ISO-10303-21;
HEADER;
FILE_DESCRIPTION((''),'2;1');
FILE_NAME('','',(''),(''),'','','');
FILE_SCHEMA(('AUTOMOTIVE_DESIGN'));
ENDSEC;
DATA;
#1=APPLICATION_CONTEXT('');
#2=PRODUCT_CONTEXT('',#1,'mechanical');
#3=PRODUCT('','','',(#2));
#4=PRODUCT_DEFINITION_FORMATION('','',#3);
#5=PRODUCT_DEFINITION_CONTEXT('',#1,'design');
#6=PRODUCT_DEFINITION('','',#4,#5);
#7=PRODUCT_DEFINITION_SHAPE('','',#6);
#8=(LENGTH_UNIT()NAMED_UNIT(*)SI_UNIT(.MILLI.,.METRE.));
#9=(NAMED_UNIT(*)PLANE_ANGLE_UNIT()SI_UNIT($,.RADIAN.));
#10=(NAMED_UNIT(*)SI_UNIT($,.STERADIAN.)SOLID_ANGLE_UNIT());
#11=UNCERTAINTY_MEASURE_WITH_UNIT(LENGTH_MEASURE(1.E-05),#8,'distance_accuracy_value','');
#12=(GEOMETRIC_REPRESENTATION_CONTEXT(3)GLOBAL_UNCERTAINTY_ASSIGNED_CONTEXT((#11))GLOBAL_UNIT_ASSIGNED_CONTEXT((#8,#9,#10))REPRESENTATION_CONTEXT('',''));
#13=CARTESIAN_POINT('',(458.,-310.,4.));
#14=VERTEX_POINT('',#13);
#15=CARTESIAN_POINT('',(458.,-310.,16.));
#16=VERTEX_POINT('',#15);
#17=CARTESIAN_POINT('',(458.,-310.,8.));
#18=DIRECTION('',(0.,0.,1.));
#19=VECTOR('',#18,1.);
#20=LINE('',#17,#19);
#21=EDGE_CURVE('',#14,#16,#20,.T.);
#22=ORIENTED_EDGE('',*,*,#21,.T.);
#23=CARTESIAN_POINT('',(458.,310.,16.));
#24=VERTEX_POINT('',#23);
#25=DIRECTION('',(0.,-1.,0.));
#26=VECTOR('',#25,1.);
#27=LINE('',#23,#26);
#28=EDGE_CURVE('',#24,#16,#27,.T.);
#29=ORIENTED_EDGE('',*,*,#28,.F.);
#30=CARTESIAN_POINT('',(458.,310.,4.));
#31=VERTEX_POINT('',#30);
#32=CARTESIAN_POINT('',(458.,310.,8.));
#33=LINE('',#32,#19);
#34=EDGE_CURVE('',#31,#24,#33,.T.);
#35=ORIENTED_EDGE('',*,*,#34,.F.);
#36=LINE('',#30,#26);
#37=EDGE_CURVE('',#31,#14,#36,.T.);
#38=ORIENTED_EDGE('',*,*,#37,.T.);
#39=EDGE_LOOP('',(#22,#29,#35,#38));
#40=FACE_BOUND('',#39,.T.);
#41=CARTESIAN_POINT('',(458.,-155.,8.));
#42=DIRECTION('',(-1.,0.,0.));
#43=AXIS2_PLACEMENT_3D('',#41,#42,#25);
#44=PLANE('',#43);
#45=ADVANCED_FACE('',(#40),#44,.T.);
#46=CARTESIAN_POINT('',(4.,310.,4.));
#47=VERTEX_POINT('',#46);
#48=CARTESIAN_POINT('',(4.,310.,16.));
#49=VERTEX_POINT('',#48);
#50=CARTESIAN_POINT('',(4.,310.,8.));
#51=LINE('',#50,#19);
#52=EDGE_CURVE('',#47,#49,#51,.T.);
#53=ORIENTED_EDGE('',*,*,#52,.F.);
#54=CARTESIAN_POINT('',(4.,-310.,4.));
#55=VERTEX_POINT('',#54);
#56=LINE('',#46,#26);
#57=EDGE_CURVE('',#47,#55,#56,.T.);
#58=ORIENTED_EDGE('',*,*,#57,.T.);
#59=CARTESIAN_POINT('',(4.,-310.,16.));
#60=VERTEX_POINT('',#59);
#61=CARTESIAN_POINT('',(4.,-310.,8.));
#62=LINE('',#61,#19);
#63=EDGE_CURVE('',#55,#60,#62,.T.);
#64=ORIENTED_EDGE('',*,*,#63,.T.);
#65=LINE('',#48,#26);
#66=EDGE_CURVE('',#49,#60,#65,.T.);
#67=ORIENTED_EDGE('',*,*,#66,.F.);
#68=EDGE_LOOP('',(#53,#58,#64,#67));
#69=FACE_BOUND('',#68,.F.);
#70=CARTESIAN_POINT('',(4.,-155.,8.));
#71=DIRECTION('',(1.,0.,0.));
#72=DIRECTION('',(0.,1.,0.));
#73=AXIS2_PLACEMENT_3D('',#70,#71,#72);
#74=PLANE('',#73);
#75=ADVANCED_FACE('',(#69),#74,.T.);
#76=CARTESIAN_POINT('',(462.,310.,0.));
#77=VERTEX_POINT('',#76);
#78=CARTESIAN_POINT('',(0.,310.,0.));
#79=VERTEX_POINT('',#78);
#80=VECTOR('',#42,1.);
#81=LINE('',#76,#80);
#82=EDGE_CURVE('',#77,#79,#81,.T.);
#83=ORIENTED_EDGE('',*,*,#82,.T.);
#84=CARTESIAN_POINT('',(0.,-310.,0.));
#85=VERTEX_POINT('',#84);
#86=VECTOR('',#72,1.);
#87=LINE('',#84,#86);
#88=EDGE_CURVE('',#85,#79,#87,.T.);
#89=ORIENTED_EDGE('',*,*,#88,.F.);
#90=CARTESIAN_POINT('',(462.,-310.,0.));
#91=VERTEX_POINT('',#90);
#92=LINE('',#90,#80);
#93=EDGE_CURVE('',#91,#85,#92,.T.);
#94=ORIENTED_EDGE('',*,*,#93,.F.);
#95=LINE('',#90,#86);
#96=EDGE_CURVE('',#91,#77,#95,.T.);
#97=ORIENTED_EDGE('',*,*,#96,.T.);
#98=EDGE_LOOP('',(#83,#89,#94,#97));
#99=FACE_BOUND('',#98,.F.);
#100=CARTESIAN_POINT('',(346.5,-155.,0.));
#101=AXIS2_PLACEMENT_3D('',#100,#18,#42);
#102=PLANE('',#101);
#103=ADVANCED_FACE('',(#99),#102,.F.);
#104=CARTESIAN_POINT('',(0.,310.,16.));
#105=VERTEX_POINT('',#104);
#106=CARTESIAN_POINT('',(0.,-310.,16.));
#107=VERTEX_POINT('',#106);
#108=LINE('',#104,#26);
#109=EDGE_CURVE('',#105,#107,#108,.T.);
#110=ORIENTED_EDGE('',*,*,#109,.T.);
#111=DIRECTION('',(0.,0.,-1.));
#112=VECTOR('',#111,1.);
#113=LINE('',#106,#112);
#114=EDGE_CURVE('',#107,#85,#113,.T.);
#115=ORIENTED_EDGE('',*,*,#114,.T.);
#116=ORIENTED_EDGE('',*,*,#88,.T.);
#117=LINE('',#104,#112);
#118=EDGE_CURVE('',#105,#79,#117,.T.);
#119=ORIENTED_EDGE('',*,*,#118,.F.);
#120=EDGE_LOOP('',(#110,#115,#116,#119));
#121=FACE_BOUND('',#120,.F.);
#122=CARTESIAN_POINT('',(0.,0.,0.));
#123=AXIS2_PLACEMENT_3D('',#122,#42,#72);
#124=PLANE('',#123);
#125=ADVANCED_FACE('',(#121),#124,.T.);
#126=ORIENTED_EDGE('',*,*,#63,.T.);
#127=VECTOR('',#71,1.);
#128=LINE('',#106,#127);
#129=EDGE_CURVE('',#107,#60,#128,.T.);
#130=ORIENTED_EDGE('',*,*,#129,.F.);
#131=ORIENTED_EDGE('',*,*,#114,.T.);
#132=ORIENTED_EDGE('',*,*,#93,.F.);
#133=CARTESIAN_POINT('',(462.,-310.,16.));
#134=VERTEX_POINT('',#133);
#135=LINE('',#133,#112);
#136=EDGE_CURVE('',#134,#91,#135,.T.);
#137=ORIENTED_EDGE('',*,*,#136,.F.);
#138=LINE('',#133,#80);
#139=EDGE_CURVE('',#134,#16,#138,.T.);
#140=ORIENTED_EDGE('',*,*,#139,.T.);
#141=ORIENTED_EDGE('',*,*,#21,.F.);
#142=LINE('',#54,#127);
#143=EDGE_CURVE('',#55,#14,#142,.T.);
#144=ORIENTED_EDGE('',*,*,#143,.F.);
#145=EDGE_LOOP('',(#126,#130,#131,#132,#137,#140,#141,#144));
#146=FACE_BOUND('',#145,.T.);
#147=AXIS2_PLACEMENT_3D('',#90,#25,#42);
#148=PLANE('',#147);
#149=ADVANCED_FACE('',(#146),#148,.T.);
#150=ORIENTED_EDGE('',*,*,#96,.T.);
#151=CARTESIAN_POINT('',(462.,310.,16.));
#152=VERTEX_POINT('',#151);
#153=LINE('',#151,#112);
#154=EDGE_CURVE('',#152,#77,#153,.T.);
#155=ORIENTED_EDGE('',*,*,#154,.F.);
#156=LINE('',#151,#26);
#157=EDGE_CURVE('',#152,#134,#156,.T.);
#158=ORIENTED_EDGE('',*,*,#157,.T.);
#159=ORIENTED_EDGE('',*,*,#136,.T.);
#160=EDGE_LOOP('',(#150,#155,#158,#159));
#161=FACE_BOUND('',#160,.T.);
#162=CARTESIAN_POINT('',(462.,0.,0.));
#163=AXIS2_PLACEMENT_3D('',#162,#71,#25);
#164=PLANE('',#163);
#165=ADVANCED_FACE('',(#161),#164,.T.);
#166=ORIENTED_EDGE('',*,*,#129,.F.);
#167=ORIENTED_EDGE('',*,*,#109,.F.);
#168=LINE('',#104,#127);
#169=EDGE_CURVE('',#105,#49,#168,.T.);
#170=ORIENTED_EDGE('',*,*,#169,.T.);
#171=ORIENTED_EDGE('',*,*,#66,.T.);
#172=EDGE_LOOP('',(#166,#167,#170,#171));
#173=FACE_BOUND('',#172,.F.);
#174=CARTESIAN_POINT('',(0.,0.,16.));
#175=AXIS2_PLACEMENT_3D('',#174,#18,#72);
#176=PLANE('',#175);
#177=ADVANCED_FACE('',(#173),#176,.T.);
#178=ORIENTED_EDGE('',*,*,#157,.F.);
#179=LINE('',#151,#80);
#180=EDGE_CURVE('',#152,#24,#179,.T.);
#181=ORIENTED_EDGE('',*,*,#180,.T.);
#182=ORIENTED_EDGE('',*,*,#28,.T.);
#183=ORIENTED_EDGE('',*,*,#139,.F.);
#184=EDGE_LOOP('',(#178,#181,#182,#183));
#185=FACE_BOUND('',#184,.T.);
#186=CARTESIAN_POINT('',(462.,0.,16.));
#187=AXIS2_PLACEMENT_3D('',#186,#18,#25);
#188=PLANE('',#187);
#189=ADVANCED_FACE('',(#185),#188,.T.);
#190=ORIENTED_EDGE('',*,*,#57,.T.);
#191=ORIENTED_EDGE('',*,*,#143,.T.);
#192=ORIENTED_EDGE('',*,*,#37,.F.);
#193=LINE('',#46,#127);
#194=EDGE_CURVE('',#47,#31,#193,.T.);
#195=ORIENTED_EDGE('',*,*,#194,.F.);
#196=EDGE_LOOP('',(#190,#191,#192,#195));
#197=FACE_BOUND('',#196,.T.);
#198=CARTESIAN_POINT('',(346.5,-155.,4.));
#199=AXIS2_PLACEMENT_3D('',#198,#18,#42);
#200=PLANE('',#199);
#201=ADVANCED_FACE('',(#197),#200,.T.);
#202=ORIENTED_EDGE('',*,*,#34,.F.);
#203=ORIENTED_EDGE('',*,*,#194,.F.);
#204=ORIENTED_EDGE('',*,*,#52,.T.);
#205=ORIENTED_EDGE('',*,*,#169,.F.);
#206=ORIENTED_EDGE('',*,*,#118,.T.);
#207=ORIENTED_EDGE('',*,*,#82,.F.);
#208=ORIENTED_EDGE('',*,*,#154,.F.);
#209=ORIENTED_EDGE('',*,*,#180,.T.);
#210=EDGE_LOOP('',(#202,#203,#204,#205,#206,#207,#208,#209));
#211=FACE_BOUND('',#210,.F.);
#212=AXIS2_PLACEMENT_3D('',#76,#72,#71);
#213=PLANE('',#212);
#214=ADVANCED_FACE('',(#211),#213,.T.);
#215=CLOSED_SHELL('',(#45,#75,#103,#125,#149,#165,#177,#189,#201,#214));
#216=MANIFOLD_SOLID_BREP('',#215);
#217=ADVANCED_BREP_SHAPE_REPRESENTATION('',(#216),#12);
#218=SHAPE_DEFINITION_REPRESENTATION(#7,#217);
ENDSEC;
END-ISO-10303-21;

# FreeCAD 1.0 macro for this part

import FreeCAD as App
import Part
import Sketcher
from FreeCAD import Vector

doc = App.newDocument("Part")
body = doc.addObject("PartDesign::Body", "Body")

sketch1 = body.newObject("Sketcher::SketchObject", "Sketch")
sketch1.AttachmentSupport = (doc.getObject("XY_Plane"), [""])
sketch1.MapMode = "FlatFace"
sketch1.addGeometry(Part.LineSegment(Vector(0, 310, 0), Vector(0, 0, 0)), False)
sketch1.addGeometry(Part.LineSegment(Vector(0, 0, 0), Vector(231, 0, 0)), False)
sketch1.addGeometry(Part.LineSegment(Vector(231, 0, 0), Vector(231, 310, 0)), False)
sketch1.addGeometry(Part.LineSegment(Vector(231, 310, 0), Vector(0, 310, 0)), False)
sketch1.addConstraint(Sketcher.Constraint("Coincident", 0, 2, 1, 1))
sketch1.addConstraint(Sketcher.Constraint("Coincident", 1, 2, 2, 1))
sketch1.addConstraint(Sketcher.Constraint("Coincident", 2, 2, 3, 1))
sketch1.addConstraint(Sketcher.Constraint("Coincident", 3, 2, 0, 1))
sketch1.addConstraint(Sketcher.Constraint("Vertical", 0))
sketch1.addConstraint(Sketcher.Constraint("Horizontal", 1))
sketch1.addConstraint(Sketcher.Constraint("Vertical", 2))
sketch1.addConstraint(Sketcher.Constraint("Horizontal", 3))
sketch1.addConstraint(Sketcher.Constraint("Coincident", 0, 2, -1, 1))
sketch1.addConstraint(Sketcher.Constraint("DistanceX", 1, 1, 1, 2, 231.0))
sketch1.addConstraint(Sketcher.Constraint("DistanceY", 0, 2, 0, 1, 310.0))
pad1 = body.newObject("PartDesign::Pad", "Pad")
pad1.Profile = sketch1
pad1.Length = 4

sketch2 = body.newObject("Sketcher::SketchObject", "Sketch001")
sketch2.AttachmentSupport = (doc.getObject("YZ_Plane"), [""])
sketch2.MapMode = "FlatFace"
sketch2.addGeometry(Part.LineSegment(Vector(0, 16, 0), Vector(0, 0, 0)), False)
sketch2.addGeometry(Part.LineSegment(Vector(0, 0, 0), Vector(310, 0, 0)), False)
sketch2.addGeometry(Part.LineSegment(Vector(310, 0, 0), Vector(310, 16, 0)), False)
sketch2.addGeometry(Part.LineSegment(Vector(310, 16, 0), Vector(0, 16, 0)), False)
sketch2.addConstraint(Sketcher.Constraint("Coincident", 0, 2, 1, 1))
sketch2.addConstraint(Sketcher.Constraint("Coincident", 1, 2, 2, 1))
sketch2.addConstraint(Sketcher.Constraint("Coincident", 2, 2, 3, 1))
sketch2.addConstraint(Sketcher.Constraint("Coincident", 3, 2, 0, 1))
sketch2.addConstraint(Sketcher.Constraint("Vertical", 0))
sketch2.addConstraint(Sketcher.Constraint("Horizontal", 1))
sketch2.addConstraint(Sketcher.Constraint("Vertical", 2))
sketch2.addConstraint(Sketcher.Constraint("Horizontal", 3))
sketch2.addConstraint(Sketcher.Constraint("Coincident", 0, 2, -1, 1))
sketch2.addConstraint(Sketcher.Constraint("DistanceX", 1, 1, 1, 2, 310.0))
sketch2.addConstraint(Sketcher.Constraint("DistanceY", 0, 2, 0, 1, 16.0))
pad2 = body.newObject("PartDesign::Pad", "Pad001")
pad2.Profile = sketch2
pad2.Length = 4
body2 = doc.addObject("PartDesign::Body", "Body001")
doc.recompute()

body2.BaseFeature = body
doc.recompute()

mirroring = doc.addObject("Part::Mirroring", "Mirroring")
mirroring.Source = body
mirroring.Base = Vector(231, 155, 2)
mirroring.Normal = Vector(1, 0, 0)
body3 = doc.addObject("PartDesign::Body", "Body002")
body3.BaseFeature = mirroring
boolean = body2.newObject("PartDesign::Boolean", "Boolean")
boolean.Type = "Fuse"
boolean.addObjects([body3])
doc.recompute()
body4 = doc.addObject("PartDesign::Body", "Body003")
doc.recompute()

body4.BaseFeature = body2
doc.recompute()

mirroring2 = doc.addObject("Part::Mirroring", "Mirroring001")
mirroring2.Source = body2
mirroring2.Base = Vector(231, 0, 2.395062)
mirroring2.Normal = Vector(0, -1, 0)
body5 = doc.addObject("PartDesign::Body", "Body004")
body5.BaseFeature = mirroring2
boolean2 = body4.newObject("PartDesign::Boolean", "Boolean001")
boolean2.Type = "Fuse"
boolean2.addObjects([body5])
doc.recompute()
mirroring.Visibility = False
mirroring2.Visibility = False

doc.recompute()
